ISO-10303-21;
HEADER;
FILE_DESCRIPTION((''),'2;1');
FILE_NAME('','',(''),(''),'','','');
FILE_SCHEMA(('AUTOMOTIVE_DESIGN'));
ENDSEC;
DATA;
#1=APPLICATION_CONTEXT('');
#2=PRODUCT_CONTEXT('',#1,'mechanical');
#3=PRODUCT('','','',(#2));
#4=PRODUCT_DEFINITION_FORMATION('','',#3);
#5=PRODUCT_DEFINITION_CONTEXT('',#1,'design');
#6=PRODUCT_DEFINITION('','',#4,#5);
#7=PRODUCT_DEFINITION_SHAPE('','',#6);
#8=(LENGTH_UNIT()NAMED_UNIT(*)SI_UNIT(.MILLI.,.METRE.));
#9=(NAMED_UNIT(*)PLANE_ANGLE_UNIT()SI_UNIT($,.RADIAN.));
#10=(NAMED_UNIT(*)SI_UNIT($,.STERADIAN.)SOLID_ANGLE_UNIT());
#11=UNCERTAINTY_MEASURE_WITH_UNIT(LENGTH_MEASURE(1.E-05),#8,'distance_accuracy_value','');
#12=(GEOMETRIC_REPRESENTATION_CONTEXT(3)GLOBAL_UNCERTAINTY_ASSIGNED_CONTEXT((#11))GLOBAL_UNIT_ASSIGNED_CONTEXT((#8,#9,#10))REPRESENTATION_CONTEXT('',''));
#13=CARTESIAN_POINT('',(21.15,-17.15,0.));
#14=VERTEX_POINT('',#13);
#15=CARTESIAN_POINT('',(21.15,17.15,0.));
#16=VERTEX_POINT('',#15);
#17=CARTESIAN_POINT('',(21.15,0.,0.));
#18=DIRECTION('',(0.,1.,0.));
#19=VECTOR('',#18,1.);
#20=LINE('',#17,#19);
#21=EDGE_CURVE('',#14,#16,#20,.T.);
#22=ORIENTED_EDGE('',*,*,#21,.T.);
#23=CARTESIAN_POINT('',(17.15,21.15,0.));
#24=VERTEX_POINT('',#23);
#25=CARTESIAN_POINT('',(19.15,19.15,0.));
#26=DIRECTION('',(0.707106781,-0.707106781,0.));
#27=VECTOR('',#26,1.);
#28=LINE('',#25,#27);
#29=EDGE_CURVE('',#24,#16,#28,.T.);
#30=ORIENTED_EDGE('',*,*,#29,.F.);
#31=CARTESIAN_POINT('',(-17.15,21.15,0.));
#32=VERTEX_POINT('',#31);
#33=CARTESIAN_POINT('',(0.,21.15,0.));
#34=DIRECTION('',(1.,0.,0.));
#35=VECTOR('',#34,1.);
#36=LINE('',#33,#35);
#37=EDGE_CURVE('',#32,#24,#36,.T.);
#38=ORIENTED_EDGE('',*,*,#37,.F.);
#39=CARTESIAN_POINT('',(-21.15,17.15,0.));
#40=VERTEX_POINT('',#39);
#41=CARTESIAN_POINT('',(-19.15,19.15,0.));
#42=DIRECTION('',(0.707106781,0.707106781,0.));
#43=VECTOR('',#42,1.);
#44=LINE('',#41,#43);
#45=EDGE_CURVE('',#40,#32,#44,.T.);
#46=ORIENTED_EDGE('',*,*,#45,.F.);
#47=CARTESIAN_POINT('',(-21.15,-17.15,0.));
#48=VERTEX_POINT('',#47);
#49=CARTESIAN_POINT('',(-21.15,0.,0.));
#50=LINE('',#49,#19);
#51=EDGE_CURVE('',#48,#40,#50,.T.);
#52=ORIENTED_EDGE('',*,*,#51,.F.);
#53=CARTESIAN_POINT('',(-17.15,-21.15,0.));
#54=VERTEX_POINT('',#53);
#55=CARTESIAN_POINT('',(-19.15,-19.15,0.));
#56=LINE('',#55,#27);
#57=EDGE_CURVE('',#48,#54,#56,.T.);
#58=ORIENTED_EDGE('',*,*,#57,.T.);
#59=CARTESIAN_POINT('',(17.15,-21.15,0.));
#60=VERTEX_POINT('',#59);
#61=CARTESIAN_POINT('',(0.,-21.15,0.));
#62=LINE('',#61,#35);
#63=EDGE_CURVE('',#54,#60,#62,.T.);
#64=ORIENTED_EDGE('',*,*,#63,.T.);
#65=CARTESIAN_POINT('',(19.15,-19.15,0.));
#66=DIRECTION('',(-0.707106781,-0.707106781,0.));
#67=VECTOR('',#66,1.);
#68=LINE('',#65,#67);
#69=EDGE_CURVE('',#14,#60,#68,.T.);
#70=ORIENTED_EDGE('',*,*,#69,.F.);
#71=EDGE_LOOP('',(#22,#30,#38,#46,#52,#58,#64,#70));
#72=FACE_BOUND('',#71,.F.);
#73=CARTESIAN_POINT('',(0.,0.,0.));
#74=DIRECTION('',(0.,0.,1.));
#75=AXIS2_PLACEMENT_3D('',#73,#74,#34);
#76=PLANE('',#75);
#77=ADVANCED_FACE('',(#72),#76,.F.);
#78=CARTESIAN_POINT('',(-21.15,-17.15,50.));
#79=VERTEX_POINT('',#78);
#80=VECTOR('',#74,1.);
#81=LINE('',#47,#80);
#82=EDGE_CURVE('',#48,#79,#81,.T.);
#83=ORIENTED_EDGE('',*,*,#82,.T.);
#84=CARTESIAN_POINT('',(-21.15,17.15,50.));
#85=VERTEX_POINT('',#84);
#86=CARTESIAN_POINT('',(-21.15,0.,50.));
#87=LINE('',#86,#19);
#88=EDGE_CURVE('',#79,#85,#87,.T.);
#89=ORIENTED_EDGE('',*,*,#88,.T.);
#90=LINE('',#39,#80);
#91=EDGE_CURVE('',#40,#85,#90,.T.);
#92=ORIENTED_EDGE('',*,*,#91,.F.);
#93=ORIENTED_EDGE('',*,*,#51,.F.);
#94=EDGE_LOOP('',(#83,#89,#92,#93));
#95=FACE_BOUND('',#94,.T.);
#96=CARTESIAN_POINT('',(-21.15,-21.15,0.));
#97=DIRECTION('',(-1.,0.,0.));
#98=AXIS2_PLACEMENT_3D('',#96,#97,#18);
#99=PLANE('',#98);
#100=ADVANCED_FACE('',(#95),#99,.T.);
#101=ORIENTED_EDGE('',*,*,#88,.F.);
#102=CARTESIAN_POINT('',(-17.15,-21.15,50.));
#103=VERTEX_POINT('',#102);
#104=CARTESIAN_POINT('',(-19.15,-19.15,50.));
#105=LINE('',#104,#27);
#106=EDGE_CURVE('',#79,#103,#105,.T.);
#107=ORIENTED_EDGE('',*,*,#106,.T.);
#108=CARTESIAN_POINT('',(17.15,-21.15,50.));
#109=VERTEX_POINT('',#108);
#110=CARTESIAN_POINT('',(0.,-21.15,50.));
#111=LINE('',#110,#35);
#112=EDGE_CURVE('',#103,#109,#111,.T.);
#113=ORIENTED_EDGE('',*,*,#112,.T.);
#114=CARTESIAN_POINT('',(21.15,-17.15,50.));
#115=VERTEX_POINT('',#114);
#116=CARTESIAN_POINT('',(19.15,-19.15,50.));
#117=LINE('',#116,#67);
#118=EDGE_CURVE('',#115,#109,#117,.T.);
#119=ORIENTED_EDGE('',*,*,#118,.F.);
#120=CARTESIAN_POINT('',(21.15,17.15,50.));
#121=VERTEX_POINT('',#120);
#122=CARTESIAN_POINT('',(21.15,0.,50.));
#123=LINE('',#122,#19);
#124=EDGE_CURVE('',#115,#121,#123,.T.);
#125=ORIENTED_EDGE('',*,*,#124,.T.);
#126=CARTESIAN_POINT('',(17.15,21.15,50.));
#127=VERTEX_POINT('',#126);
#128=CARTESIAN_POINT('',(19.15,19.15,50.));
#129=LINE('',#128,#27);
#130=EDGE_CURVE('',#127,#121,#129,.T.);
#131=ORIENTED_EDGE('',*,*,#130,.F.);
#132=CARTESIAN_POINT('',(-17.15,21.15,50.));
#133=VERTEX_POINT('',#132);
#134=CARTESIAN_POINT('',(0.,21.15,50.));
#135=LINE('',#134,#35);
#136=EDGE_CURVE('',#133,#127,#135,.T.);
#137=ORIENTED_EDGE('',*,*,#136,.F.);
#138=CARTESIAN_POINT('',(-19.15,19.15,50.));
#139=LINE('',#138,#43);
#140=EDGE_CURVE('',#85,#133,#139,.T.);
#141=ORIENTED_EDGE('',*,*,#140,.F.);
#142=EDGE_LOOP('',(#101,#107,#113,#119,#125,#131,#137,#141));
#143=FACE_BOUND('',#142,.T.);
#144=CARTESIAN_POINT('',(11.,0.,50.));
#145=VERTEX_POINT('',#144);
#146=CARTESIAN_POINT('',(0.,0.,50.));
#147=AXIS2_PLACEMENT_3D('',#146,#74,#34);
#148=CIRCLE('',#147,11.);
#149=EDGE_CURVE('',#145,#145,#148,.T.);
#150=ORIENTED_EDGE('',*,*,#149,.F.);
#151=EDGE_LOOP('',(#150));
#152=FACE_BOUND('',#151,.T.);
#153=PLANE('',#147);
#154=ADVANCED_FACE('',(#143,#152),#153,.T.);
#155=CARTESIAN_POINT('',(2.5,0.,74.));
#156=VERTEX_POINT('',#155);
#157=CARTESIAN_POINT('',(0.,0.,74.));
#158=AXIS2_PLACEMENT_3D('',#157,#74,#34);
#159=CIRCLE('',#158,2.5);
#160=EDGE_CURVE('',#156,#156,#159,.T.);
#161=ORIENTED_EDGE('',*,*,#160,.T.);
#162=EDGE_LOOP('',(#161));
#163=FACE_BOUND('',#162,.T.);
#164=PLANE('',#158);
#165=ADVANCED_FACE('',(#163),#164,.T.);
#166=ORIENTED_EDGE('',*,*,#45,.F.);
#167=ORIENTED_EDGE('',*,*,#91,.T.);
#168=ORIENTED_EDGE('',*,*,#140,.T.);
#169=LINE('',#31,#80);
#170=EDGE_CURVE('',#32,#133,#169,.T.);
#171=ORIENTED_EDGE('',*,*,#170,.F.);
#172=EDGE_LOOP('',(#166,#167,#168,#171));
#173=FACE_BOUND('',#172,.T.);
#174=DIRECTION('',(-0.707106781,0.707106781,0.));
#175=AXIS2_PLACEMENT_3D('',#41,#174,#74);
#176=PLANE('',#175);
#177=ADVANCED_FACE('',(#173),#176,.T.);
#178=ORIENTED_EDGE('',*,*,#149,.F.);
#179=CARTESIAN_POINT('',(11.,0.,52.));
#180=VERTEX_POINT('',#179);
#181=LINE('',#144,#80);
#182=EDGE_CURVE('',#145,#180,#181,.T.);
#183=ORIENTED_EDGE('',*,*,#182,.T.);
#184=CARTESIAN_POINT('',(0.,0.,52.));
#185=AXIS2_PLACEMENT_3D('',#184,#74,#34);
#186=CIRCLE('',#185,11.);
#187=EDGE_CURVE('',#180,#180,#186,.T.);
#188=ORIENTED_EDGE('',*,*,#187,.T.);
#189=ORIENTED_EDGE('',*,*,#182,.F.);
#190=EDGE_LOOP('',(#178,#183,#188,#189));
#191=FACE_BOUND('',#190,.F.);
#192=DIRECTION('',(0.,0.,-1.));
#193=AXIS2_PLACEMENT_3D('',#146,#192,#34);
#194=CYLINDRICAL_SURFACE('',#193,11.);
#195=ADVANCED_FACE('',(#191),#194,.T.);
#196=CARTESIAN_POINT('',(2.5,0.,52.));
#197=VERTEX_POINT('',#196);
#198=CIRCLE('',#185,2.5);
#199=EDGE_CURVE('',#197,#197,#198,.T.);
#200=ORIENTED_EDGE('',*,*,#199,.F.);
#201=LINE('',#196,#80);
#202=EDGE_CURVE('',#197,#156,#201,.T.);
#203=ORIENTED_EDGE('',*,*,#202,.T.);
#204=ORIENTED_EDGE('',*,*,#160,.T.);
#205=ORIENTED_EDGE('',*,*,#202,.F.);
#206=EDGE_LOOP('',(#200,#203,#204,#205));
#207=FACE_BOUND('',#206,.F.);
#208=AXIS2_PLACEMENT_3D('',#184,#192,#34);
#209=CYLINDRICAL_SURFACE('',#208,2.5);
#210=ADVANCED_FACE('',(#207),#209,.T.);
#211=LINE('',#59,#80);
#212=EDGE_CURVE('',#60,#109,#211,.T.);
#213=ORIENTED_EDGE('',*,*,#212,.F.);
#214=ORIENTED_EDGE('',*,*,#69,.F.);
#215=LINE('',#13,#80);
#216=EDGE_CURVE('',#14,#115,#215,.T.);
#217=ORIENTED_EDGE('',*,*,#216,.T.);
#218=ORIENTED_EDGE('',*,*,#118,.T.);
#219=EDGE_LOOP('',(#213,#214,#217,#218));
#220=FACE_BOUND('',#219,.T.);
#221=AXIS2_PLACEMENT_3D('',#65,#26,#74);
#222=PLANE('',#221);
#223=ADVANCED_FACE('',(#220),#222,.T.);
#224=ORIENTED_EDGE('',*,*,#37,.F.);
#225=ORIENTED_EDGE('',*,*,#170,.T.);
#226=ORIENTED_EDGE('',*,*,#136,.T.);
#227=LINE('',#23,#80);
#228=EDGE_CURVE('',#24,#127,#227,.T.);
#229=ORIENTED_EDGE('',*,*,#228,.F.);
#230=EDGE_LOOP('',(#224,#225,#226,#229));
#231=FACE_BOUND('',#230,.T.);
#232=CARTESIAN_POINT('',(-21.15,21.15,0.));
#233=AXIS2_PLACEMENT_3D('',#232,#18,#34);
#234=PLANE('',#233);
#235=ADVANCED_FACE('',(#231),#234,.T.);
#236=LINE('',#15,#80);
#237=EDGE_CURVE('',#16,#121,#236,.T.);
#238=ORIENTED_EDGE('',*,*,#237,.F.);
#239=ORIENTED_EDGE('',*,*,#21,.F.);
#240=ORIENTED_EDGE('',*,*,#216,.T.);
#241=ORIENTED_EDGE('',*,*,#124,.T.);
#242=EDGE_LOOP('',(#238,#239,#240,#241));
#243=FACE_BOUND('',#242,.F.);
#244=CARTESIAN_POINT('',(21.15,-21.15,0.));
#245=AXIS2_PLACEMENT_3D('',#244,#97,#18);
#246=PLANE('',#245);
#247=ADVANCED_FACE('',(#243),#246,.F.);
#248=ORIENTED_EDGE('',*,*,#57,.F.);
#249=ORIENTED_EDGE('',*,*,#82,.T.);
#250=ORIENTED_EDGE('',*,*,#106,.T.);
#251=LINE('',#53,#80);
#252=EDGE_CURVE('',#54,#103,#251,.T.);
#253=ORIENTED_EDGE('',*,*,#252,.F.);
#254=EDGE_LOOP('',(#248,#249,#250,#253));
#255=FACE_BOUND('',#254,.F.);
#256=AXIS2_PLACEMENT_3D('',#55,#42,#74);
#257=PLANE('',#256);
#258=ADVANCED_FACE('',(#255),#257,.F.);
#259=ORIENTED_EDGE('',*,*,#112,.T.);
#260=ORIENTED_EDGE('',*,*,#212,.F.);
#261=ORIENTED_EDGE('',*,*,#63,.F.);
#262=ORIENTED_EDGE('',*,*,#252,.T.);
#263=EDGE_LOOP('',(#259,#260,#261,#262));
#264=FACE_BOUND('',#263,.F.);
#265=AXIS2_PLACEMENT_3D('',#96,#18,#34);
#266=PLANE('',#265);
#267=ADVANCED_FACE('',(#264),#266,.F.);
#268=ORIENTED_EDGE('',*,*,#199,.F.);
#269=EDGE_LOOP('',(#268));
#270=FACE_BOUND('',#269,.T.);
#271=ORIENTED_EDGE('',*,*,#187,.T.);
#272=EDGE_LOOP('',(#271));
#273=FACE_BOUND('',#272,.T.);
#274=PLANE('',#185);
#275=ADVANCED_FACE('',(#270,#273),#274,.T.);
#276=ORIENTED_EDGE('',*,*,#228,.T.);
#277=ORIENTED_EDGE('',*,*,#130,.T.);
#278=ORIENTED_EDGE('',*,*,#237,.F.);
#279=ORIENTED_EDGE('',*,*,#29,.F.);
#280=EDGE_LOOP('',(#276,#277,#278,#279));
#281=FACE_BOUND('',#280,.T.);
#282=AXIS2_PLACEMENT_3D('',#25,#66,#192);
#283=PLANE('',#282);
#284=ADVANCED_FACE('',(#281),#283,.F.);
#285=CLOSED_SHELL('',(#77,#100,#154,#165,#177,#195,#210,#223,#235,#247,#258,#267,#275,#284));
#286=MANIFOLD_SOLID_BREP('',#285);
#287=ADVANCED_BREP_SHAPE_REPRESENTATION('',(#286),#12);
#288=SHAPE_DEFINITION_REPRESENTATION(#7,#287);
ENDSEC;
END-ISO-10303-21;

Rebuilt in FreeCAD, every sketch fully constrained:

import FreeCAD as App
import Part
import Sketcher


def edges_at(feature, points):
    """Names of the edges that pass closest to the given points."""
    edges = feature.Shape.Edges
    near = lambda p: min(range(len(edges)), key=lambda i: edges[i].distToShape(Part.Vertex(*p))[0])
    return sorted({f"Edge{near(p) + 1}" for p in points})

doc = App.newDocument("Part")
body = doc.addObject("PartDesign::Body", "Body")

sketch1 = body.newObject("Sketcher::SketchObject", "Sketch")
sketch1.AttachmentSupport = (doc.getObject("XY_Plane"), [""])
sketch1.MapMode = "FlatFace"
sketch1.addGeometry([
    Part.LineSegment(App.Vector(-21, 21, 0), App.Vector(-21, -21, 0)),
    Part.LineSegment(App.Vector(-21, -21, 0), App.Vector(21, -21, 0)),
    Part.LineSegment(App.Vector(21, -21, 0), App.Vector(21, 21, 0)),
    Part.LineSegment(App.Vector(21, 21, 0), App.Vector(-21, 21, 0)),
], False)
sketch1.addConstraint([
    Sketcher.Constraint("Coincident", 0, 2, 1, 1),
    Sketcher.Constraint("Coincident", 1, 2, 2, 1),
    Sketcher.Constraint("Coincident", 2, 2, 3, 1),
    Sketcher.Constraint("Coincident", 3, 2, 0, 1),
    Sketcher.Constraint("Vertical", 0),
    Sketcher.Constraint("Horizontal", 1),
    Sketcher.Constraint("Vertical", 2),
    Sketcher.Constraint("Horizontal", 3),
    Sketcher.Constraint("Symmetric", 0, 2, 2, 2, -1, 1),
    Sketcher.Constraint("Equal", 3, 0),
    Sketcher.Constraint("DistanceX", 1, 1, 1, 2, 42.3),
])
pad1 = body.newObject("PartDesign::Pad", "Pad")
pad1.Profile = sketch1
pad1.Length = 50

sketch2 = body.newObject("Sketcher::SketchObject", "Sketch001")
sketch2.AttachmentSupport = (doc.getObject("XY_Plane"), [""])
sketch2.MapMode = "FlatFace"
sketch2.AttachmentOffset = App.Placement(App.Vector(0, 0, 50), App.Rotation())
sketch2.addGeometry(Part.Circle(App.Vector(0, 0, 0), App.Vector(0, 0, 1), 11), False)
sketch2.addConstraint([
    Sketcher.Constraint("Coincident", 0, 3, -1, 1),
    Sketcher.Constraint("Diameter", 0, 22.0),
])
pad2 = body.newObject("PartDesign::Pad", "Pad001")
pad2.Profile = sketch2
pad2.Length = 2

sketch3 = body.newObject("Sketcher::SketchObject", "Sketch002")
sketch3.AttachmentSupport = (doc.getObject("XY_Plane"), [""])
sketch3.MapMode = "FlatFace"
sketch3.AttachmentOffset = App.Placement(App.Vector(0, 0, 52), App.Rotation())
sketch3.addGeometry(Part.Circle(App.Vector(0, 0, 0), App.Vector(0, 0, 1), 2.5), False)
sketch3.addConstraint([
    Sketcher.Constraint("Coincident", 0, 3, -1, 1),
    Sketcher.Constraint("Diameter", 0, 5.0),
])
pad3 = body.newObject("PartDesign::Pad", "Pad002")
pad3.Profile = sketch3
pad3.Length = 22
doc.recompute()

chamfer = body.newObject("PartDesign::Chamfer", "Chamfer")
chamfer.Base = (pad3, edges_at(pad3, [(-21.15, -21.15, 25)]))
chamfer.Size = 4
doc.recompute()

chamfer2 = body.newObject("PartDesign::Chamfer", "Chamfer001")
chamfer2.Base = (chamfer, edges_at(chamfer, [(-21.15, 21.15, 25)]))
chamfer2.Size = 4
doc.recompute()

chamfer3 = body.newObject("PartDesign::Chamfer", "Chamfer002")
chamfer3.Base = (chamfer2, edges_at(chamfer2, [(21.15, 21.15, 25)]))
chamfer3.Size = 4
doc.recompute()

chamfer4 = body.newObject("PartDesign::Chamfer", "Chamfer003")
chamfer4.Base = (chamfer3, edges_at(chamfer3, [(21.15, -21.15, 25)]))
chamfer4.Size = 4

doc.recompute()
